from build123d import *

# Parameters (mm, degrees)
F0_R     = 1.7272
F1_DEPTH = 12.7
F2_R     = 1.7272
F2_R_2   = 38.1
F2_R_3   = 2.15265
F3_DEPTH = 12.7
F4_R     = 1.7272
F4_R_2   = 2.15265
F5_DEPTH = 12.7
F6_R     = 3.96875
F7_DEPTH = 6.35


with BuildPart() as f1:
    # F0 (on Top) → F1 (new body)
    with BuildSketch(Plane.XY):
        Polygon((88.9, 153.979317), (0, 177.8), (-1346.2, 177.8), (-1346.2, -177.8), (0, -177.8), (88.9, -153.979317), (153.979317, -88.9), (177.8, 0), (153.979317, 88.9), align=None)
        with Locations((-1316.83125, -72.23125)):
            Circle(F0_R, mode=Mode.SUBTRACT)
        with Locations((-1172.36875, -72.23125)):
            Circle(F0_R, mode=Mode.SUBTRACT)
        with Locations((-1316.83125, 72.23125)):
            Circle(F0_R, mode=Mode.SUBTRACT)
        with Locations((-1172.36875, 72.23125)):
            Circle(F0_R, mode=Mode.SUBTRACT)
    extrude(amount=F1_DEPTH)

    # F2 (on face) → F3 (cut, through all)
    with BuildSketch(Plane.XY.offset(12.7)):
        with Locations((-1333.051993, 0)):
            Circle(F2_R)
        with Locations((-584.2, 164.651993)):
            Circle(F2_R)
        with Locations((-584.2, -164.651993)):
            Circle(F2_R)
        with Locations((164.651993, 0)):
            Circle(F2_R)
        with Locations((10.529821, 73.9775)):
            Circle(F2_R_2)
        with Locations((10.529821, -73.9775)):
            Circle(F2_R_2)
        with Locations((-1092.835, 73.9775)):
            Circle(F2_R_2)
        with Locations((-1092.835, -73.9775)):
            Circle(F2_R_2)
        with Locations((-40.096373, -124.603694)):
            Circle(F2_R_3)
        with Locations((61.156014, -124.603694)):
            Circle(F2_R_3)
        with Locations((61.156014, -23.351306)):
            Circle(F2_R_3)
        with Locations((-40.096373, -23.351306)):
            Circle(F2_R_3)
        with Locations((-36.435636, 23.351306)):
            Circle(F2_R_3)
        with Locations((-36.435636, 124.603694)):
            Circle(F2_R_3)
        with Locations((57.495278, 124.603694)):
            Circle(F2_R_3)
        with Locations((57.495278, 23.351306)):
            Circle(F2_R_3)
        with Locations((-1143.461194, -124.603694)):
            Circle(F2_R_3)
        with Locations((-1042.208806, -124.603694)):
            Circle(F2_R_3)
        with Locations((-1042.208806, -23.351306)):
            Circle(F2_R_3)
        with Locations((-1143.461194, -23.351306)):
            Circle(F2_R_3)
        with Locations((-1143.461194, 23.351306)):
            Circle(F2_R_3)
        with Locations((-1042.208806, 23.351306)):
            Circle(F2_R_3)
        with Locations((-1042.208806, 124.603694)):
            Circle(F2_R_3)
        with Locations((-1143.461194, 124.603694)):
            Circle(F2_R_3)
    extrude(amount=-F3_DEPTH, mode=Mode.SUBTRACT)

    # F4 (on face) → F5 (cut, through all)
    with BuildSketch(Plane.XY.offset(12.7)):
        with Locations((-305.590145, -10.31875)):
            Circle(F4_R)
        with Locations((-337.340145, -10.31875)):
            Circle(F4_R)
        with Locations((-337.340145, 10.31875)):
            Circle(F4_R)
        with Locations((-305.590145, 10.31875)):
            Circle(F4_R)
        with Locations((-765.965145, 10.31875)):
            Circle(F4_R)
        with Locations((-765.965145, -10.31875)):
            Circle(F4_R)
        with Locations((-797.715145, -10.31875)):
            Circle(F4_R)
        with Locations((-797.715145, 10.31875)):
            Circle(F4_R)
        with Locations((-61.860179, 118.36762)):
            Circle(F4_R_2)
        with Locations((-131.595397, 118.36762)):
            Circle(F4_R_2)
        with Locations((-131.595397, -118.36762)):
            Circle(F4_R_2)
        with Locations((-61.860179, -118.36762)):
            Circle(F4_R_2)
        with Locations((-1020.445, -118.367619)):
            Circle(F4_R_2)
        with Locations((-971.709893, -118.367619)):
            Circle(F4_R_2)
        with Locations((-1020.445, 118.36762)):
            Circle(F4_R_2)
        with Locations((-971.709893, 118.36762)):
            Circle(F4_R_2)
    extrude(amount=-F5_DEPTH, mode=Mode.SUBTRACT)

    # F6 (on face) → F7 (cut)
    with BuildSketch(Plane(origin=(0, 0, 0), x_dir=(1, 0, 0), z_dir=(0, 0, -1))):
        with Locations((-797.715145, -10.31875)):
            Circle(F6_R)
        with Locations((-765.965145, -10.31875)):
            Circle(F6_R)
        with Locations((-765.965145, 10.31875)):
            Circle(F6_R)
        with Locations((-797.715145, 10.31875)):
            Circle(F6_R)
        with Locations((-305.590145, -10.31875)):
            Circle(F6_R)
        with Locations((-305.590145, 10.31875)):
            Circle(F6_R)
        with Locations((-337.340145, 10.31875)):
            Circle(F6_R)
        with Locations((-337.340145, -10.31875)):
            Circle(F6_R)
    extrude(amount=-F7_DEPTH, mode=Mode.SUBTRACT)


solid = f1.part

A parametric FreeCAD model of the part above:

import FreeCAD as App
import Part
import Sketcher
from FreeCAD import Vector
Q = App.Units.Quantity

doc = App.newDocument("Part")
params = doc.addObject("Spreadsheet::Sheet", "Params")
for row, (alias, value) in enumerate([
    ("sketch1_width", "53 in"),
    ("sketch1_height", "14 in"),
    ("sketch1_diameter", "0.136 in"),
    ("pad1_length", "0.5 in"),
    ("sketch2_diameter", "3 in"),
    ("sketch2_diameter2", "0.136 in"),
    ("sketch3_diameter", "0.136 in"),
    ("sketch4_diameter", "0.3125 in"),
    ("pocket3_length", "0.25 in"),
], start=1):
    params.set(f"A{row}", alias)
    params.set(f"B{row}", "=" + value)
    params.setAlias(f"B{row}", alias)

body = doc.addObject("PartDesign::Body", "Body")

# Sketch on XY plane
sketch1 = body.newObject("Sketcher::SketchObject", "Sketch")
sketch1.AttachmentSupport = (doc.getObject("XY_Plane"), [""])
sketch1.MapMode = "FlatFace"
sketch1.addGeometry([
    Part.LineSegment(Vector(88.9, 154, 0), Vector(0, 177.8, 0)),  # 0
    Part.LineSegment(Vector(0, 177.8, 0), Vector(-1346.2, 177.8, 0)),  # 1
    Part.LineSegment(Vector(-1346.2, 177.8, 0), Vector(-1346.2, -177.8, 0)),  # 2
    Part.LineSegment(Vector(-1346.2, -177.8, 0), Vector(0, -177.8, 0)),  # 3
    Part.LineSegment(Vector(0, -177.8, 0), Vector(88.9, -154, 0)),  # 4
    Part.LineSegment(Vector(88.9, -154, 0), Vector(154, -88.9, 0)),  # 5
    Part.LineSegment(Vector(154, -88.9, 0), Vector(177.8, 0, 0)),  # 6
    Part.LineSegment(Vector(177.8, 0, 0), Vector(154, 88.9, 0)),  # 7
    Part.LineSegment(Vector(154, 88.9, 0), Vector(88.9, 154, 0)),  # 8
    Part.Circle(Vector(-1316.8, -72.2, 0), Vector(0, 0, 1), 1.7),  # 9
    Part.Circle(Vector(-1172.4, -72.2, 0), Vector(0, 0, 1), 1.7),  # 10
    Part.Circle(Vector(-1316.8, 72.2, 0), Vector(0, 0, 1), 1.7),  # 11
    Part.Circle(Vector(-1172.4, 72.2, 0), Vector(0, 0, 1), 1.7),  # 12
], False)
sketch1.addConstraint([
    Sketcher.Constraint("Coincident", 0, 2, 1, 1),
    Sketcher.Constraint("Coincident", 1, 2, 2, 1),
    Sketcher.Constraint("Coincident", 2, 2, 3, 1),
    Sketcher.Constraint("Coincident", 3, 2, 4, 1),
    Sketcher.Constraint("Coincident", 4, 2, 5, 1),
    Sketcher.Constraint("Coincident", 5, 2, 6, 1),
    Sketcher.Constraint("Coincident", 6, 2, 7, 1),
    Sketcher.Constraint("Coincident", 7, 2, 8, 1),
    Sketcher.Constraint("Coincident", 8, 2, 0, 1),
    Sketcher.Constraint("Horizontal", 1),
    Sketcher.Constraint("Vertical", 2),
    Sketcher.Constraint("Horizontal", 3),
    Sketcher.Constraint("Equal", 9, 10),
    Sketcher.Constraint("Equal", 10, 11),
    Sketcher.Constraint("Equal", 11, 12),
    Sketcher.Constraint("Symmetric", 0, 2, 3, 2, -1, 1),
    Sketcher.Constraint("Symmetric", 9, 3, 11, 3, -1),
    Sketcher.Constraint("Symmetric", 10, 3, 12, 3, -1),
    Sketcher.Constraint("Symmetric", 5, 2, 7, 2, -1),
    Sketcher.Constraint("Symmetric", 4, 2, 8, 2, -1),
    Sketcher.Constraint("PointOnObject", 0, 2, -2),
    Sketcher.Constraint("PointOnObject", 6, 2, -1),
    Sketcher.Constraint("Perpendicular", 0, 6),
    Sketcher.Constraint("Perpendicular", 5, 8),
    Sketcher.Constraint("Horizontal", 9, 3, 10, 3),
    Sketcher.Constraint("Equal", 4, 5),
    Sketcher.Constraint("Equal", 5, 6),
    Sketcher.Constraint("DistanceX", 1, 2, 1, 1, Q("53 in")),
    Sketcher.Constraint("DistanceY", 2, 2, 2, 1, Q("14 in")),
    Sketcher.Constraint("Diameter", 9, Q("0.136 in")),
    Sketcher.Constraint("Angle", 0, Q("165 deg")),
    Sketcher.Constraint("DistanceX", 9, 3, -1, 1, Q("51.84375 in")),
    Sketcher.Constraint("DistanceY", 9, 3, -1, 1, Q("2.84375 in")),
    Sketcher.Constraint("DistanceX", 10, 3, -1, 1, Q("46.15625 in")),
])
sketch1.setExpression("Constraints[27]", "Params.sketch1_width")
sketch1.setExpression("Constraints[28]", "Params.sketch1_height")
sketch1.setExpression("Constraints[29]", "Params.sketch1_diameter")
pad1 = body.newObject("PartDesign::Pad", "Pad")
pad1.Profile = sketch1
pad1.setExpression("Length", "Params.pad1_length")

# Sketch on XY plane
sketch2 = body.newObject("Sketcher::SketchObject", "Sketch001")
sketch2.AttachmentSupport = (doc.getObject("XY_Plane"), [""])
sketch2.MapMode = "FlatFace"
sketch2.AttachmentOffset = App.Placement(Vector(0, 0, 0.5 * 25.4), App.Rotation())
sketch2.addGeometry([
    Part.Circle(Vector(-1333.1, 0, 0), Vector(0, 0, 1), 1.7),  # 0
    Part.Circle(Vector(-584.2, 164.7, 0), Vector(0, 0, 1), 1.7),  # 1
    Part.Circle(Vector(-584.2, -164.7, 0), Vector(0, 0, 1), 1.7),  # 2
    Part.Circle(Vector(164.7, 0, 0), Vector(0, 0, 1), 1.7),  # 3
    Part.Circle(Vector(10.5, 74, 0), Vector(0, 0, 1), 38.1),  # 4
    Part.Circle(Vector(10.5, -74, 0), Vector(0, 0, 1), 38.1),  # 5
    Part.Circle(Vector(-1092.8, 74, 0), Vector(0, 0, 1), 38.1),  # 6
    Part.Circle(Vector(-1092.8, -74, 0), Vector(0, 0, 1), 38.1),  # 7
    Part.Circle(Vector(-40.1, -124.6, 0), Vector(0, 0, 1), 2.2),  # 8
    Part.Circle(Vector(61.2, -124.6, 0), Vector(0, 0, 1), 2.2),  # 9
    Part.Circle(Vector(61.2, -23.4, 0), Vector(0, 0, 1), 2.2),  # 10
    Part.Circle(Vector(-40.1, -23.4, 0), Vector(0, 0, 1), 2.2),  # 11
    Part.Circle(Vector(-36.4, 23.4, 0), Vector(0, 0, 1), 2.2),  # 12
    Part.Circle(Vector(-36.4, 124.6, 0), Vector(0, 0, 1), 2.2),  # 13
    Part.Circle(Vector(57.5, 124.6, 0), Vector(0, 0, 1), 2.2),  # 14
    Part.Circle(Vector(57.5, 23.4, 0), Vector(0, 0, 1), 2.2),  # 15
    Part.Circle(Vector(-1143.5, -124.6, 0), Vector(0, 0, 1), 2.2),  # 16
    Part.Circle(Vector(-1042.2, -124.6, 0), Vector(0, 0, 1), 2.2),  # 17
    Part.Circle(Vector(-1042.2, -23.4, 0), Vector(0, 0, 1), 2.2),  # 18
    Part.Circle(Vector(-1143.5, -23.4, 0), Vector(0, 0, 1), 2.2),  # 19
    Part.Circle(Vector(-1143.5, 23.4, 0), Vector(0, 0, 1), 2.2),  # 20
    Part.Circle(Vector(-1042.2, 23.4, 0), Vector(0, 0, 1), 2.2),  # 21
    Part.Circle(Vector(-1042.2, 124.6, 0), Vector(0, 0, 1), 2.2),  # 22
    Part.Circle(Vector(-1143.5, 124.6, 0), Vector(0, 0, 1), 2.2),  # 23
], False)
sketch2.addConstraint([
    Sketcher.Constraint("Equal", 0, 1),
    Sketcher.Constraint("Equal", 1, 2),
    Sketcher.Constraint("Equal", 2, 3),
    Sketcher.Constraint("Equal", 4, 5),
    Sketcher.Constraint("Equal", 5, 6),
    Sketcher.Constraint("Equal", 6, 7),
    Sketcher.Constraint("Equal", 8, 9),
    Sketcher.Constraint("Equal", 9, 10),
    Sketcher.Constraint("Equal", 10, 11),
    Sketcher.Constraint("Equal", 11, 12),
    Sketcher.Constraint("Equal", 12, 13),
    Sketcher.Constraint("Equal", 13, 14),
    Sketcher.Constraint("Equal", 14, 15),
    Sketcher.Constraint("Equal", 15, 16),
    Sketcher.Constraint("Equal", 16, 17),
    Sketcher.Constraint("Equal", 17, 18),
    Sketcher.Constraint("Equal", 18, 19),
    Sketcher.Constraint("Equal", 19, 20),
    Sketcher.Constraint("Equal", 20, 21),
    Sketcher.Constraint("Equal", 21, 22),
    Sketcher.Constraint("Equal", 22, 23),
    Sketcher.Constraint("Symmetric", 1, 3, 2, 3, -1),
    Sketcher.Constraint("Symmetric", 4, 3, 5, 3, -1),
    Sketcher.Constraint("Symmetric", 6, 3, 7, 3, -1),
    Sketcher.Constraint("Symmetric", 19, 3, 20, 3, -1),
    Sketcher.Constraint("Symmetric", 18, 3, 21, 3, -1),
    Sketcher.Constraint("Symmetric", 17, 3, 22, 3, -1),
    Sketcher.Constraint("Symmetric", 16, 3, 23, 3, -1),
    Sketcher.Constraint("PointOnObject", 0, 3, -1),
    Sketcher.Constraint("PointOnObject", 3, 3, -1),
    Sketcher.Constraint("Horizontal", 4, 3, 6, 3),
    Sketcher.Constraint("Horizontal", 8, 3, 9, 3),
    Sketcher.Constraint("Horizontal", 10, 3, 11, 3),
    Sketcher.Constraint("Horizontal", 13, 3, 14, 3),
    Sketcher.Constraint("Horizontal", 12, 3, 15, 3),
    Sketcher.Constraint("Horizontal", 9, 3, 16, 3),
    Sketcher.Constraint("Horizontal", 16, 3, 17, 3),
    Sketcher.Constraint("Horizontal", 11, 3, 18, 3),
    Sketcher.Constraint("Horizontal", 18, 3, 19, 3),
    Sketcher.Constraint("Horizontal", 15, 3, 20, 3),
    Sketcher.Constraint("Horizontal", 14, 3, 22, 3),
    Sketcher.Constraint("Vertical", 9, 3, 10, 3),
    Sketcher.Constraint("Vertical", 8, 3, 11, 3),
    Sketcher.Constraint("Vertical", 12, 3, 13, 3),
    Sketcher.Constraint("Vertical", 14, 3, 15, 3),
    Sketcher.Constraint("Vertical", 17, 3, 18, 3),
    Sketcher.Constraint("Vertical", 16, 3, 19, 3),
    Sketcher.Constraint("Diameter", 4, Q("3 in")),
    Sketcher.Constraint("Diameter", 0, Q("0.136 in")),
    Sketcher.Constraint("DistanceX", 1, 3, -1, 1, Q("23 in")),
    Sketcher.Constraint("Diameter", 8, Q("0.1695 in")),
    Sketcher.Constraint("DistanceX", 6, 3, -1, 1, Q("43.025 in")),
    Sketcher.Constraint("DistanceY", 5, 3, 4, 3, Q("5.825 in")),
    Sketcher.Constraint("DistanceY", 8, 3, 12, 3, Q("5.825 in")),
    Sketcher.Constraint("DistanceY", 2, 3, 8, 3, Q("40.048299 mm")),
    Sketcher.Constraint("DistanceX", 0, 3, 16, 3, Q("189.590799 mm")),
    Sketcher.Constraint("DistanceX", -1, 1, 4, 3, Q("10.529821 mm")),
    Sketcher.Constraint("DistanceX", 4, 3, 3, 3, Q("154.122172 mm")),
    Sketcher.Constraint("DistanceX", 9, 3, 3, 3, Q("103.495979 mm")),
    Sketcher.Constraint("DistanceX", 12, 3, 10, 3, Q("97.59165 mm")),
    Sketcher.Constraint("DistanceX", 0, 3, -1, 1, Q("1333.051993 mm")),
    Sketcher.Constraint("DistanceY", -1, 1, 1, 3, Q("164.651993 mm")),
    Sketcher.Constraint("DistanceX", 8, 3, -1, 1, Q("40.096373 mm")),
    Sketcher.Constraint("DistanceX", -1, 1, 14, 3, Q("57.495278 mm")),
    Sketcher.Constraint("DistanceX", 17, 3, -1, 1, Q("1042.208806 mm")),
])
sketch2.setExpression("Constraints[47]", "Params.sketch2_diameter")
sketch2.setExpression("Constraints[48]", "Params.sketch2_diameter2")
pocket1 = body.newObject("PartDesign::Pocket", "Pocket")
pocket1.Profile = sketch2
pocket1.Type = "ThroughAll"

# Sketch on XY plane
sketch3 = body.newObject("Sketcher::SketchObject", "Sketch002")
sketch3.AttachmentSupport = (doc.getObject("XY_Plane"), [""])
sketch3.MapMode = "FlatFace"
sketch3.AttachmentOffset = App.Placement(Vector(0, 0, 0.5 * 25.4), App.Rotation())
sketch3.addGeometry([
    Part.Circle(Vector(-305.6, -10.3, 0), Vector(0, 0, 1), 1.7),  # 0
    Part.Circle(Vector(-337.3, -10.3, 0), Vector(0, 0, 1), 1.7),  # 1
    Part.Circle(Vector(-337.3, 10.3, 0), Vector(0, 0, 1), 1.7),  # 2
    Part.Circle(Vector(-305.6, 10.3, 0), Vector(0, 0, 1), 1.7),  # 3
    Part.Circle(Vector(-766, 10.3, 0), Vector(0, 0, 1), 1.7),  # 4
    Part.Circle(Vector(-766, -10.3, 0), Vector(0, 0, 1), 1.7),  # 5
    Part.Circle(Vector(-797.7, -10.3, 0), Vector(0, 0, 1), 1.7),  # 6
    Part.Circle(Vector(-797.7, 10.3, 0), Vector(0, 0, 1), 1.7),  # 7
    Part.Circle(Vector(-61.9, 118.4, 0), Vector(0, 0, 1), 2.2),  # 8
    Part.Circle(Vector(-131.6, 118.4, 0), Vector(0, 0, 1), 2.2),  # 9
    Part.Circle(Vector(-131.6, -118.4, 0), Vector(0, 0, 1), 2.2),  # 10
    Part.Circle(Vector(-61.9, -118.4, 0), Vector(0, 0, 1), 2.2),  # 11
    Part.Circle(Vector(-1020.4, -118.4, 0), Vector(0, 0, 1), 2.2),  # 12
    Part.Circle(Vector(-971.7, -118.4, 0), Vector(0, 0, 1), 2.2),  # 13
    Part.Circle(Vector(-1020.4, 118.4, 0), Vector(0, 0, 1), 2.2),  # 14
    Part.Circle(Vector(-971.7, 118.4, 0), Vector(0, 0, 1), 2.2),  # 15
], False)
sketch3.addConstraint([
    Sketcher.Constraint("Equal", 0, 1),
    Sketcher.Constraint("Equal", 1, 2),
    Sketcher.Constraint("Equal", 2, 3),
    Sketcher.Constraint("Equal", 3, 4),
    Sketcher.Constraint("Equal", 4, 5),
    Sketcher.Constraint("Equal", 5, 6),
    Sketcher.Constraint("Equal", 6, 7),
    Sketcher.Constraint("Equal", 8, 9),
    Sketcher.Constraint("Equal", 9, 10),
    Sketcher.Constraint("Equal", 10, 11),
    Sketcher.Constraint("Equal", 11, 12),
    Sketcher.Constraint("Equal", 12, 13),
    Sketcher.Constraint("Equal", 13, 14),
    Sketcher.Constraint("Equal", 14, 15),
    Sketcher.Constraint("Symmetric", 1, 3, 2, 3, -1),
    Sketcher.Constraint("Symmetric", 0, 3, 3, 3, -1),
    Sketcher.Constraint("Symmetric", 4, 3, 5, 3, -1),
    Sketcher.Constraint("Symmetric", 6, 3, 7, 3, -1),
    Sketcher.Constraint("Symmetric", 9, 3, 10, 3, -1),
    Sketcher.Constraint("Symmetric", 8, 3, 11, 3, -1),
    Sketcher.Constraint("Symmetric", 12, 3, 14, 3, -1),
    Sketcher.Constraint("Symmetric", 13, 3, 15, 3, -1),
    Sketcher.Constraint("Horizontal", 0, 3, 1, 3),
    Sketcher.Constraint("Horizontal", 3, 3, 4, 3),
    Sketcher.Constraint("Horizontal", 5, 3, 6, 3),
    Sketcher.Constraint("Horizontal", 8, 3, 9, 3),
    Sketcher.Constraint("Horizontal", 11, 3, 12, 3),
    Sketcher.Constraint("Horizontal", 12, 3, 13, 3),
    Sketcher.Constraint("Diameter", 0, Q("0.136 in")),
    Sketcher.Constraint("Diameter", 8, Q("0.1695 in")),
    Sketcher.Constraint("DistanceX", 1, 3, 0, 3, Q("1.25 in")),
    Sketcher.Constraint("DistanceX", 6, 3, 5, 3, Q("1.25 in")),
    Sketcher.Constraint("DistanceY", 0, 3, -1, 1, Q("0.40625 in")),
    Sketcher.Constraint("DistanceX", 12, 3, -1, 1, Q("40.175 in")),
    Sketcher.Constraint("DistanceX", 4, 3, 2, 3, Q("16.875 in")),
    Sketcher.Constraint("DistanceX", 8, 3, -1, 1, Q("61.860179 mm")),
    Sketcher.Constraint("DistanceY", -1, 1, 8, 3, Q("118.36762 mm")),
    Sketcher.Constraint("DistanceX", 3, 3, 9, 3, Q("173.994748 mm")),
    Sketcher.Constraint("DistanceX", 0, 3, -1, 1, Q("305.590145 mm")),
    Sketcher.Constraint("DistanceX", 13, 3, -1, 1, Q("971.709893 mm")),
])
sketch3.setExpression("Constraints[28]", "Params.sketch3_diameter")
pocket2 = body.newObject("PartDesign::Pocket", "Pocket001")
pocket2.Profile = sketch3
pocket2.Type = "ThroughAll"

# Sketch on XY plane
sketch4 = body.newObject("Sketcher::SketchObject", "Sketch003")
sketch4.AttachmentSupport = (doc.getObject("XY_Plane"), [""])
sketch4.MapMode = "FlatFace"
sketch4.addGeometry([
    Part.Circle(Vector(-797.7, 10.3, 0), Vector(0, 0, 1), 4),  # 0
    Part.Circle(Vector(-766, 10.3, 0), Vector(0, 0, 1), 4),  # 1
    Part.Circle(Vector(-766, -10.3, 0), Vector(0, 0, 1), 4),  # 2
    Part.Circle(Vector(-797.7, -10.3, 0), Vector(0, 0, 1), 4),  # 3
    Part.Circle(Vector(-305.6, 10.3, 0), Vector(0, 0, 1), 4),  # 4
    Part.Circle(Vector(-305.6, -10.3, 0), Vector(0, 0, 1), 4),  # 5
    Part.Circle(Vector(-337.3, -10.3, 0), Vector(0, 0, 1), 4),  # 6
    Part.Circle(Vector(-337.3, 10.3, 0), Vector(0, 0, 1), 4),  # 7
], False)
sketch4.addConstraint([
    Sketcher.Constraint("Equal", 0, 1),
    Sketcher.Constraint("Equal", 1, 2),
    Sketcher.Constraint("Equal", 2, 3),
    Sketcher.Constraint("Equal", 3, 4),
    Sketcher.Constraint("Equal", 4, 5),
    Sketcher.Constraint("Equal", 5, 6),
    Sketcher.Constraint("Equal", 6, 7),
    Sketcher.Constraint("Symmetric", 1, 3, 2, 3, -1),
    Sketcher.Constraint("Symmetric", 0, 3, 3, 3, -1),
    Sketcher.Constraint("Symmetric", 4, 3, 5, 3, -1),
    Sketcher.Constraint("Symmetric", 6, 3, 7, 3, -1),
    Sketcher.Constraint("Horizontal", 0, 3, 1, 3),
    Sketcher.Constraint("Horizontal", 1, 3, 4, 3),
    Sketcher.Constraint("Horizontal", 5, 3, 6, 3),
    Sketcher.Constraint("Diameter", 0, Q("0.3125 in")),
    Sketcher.Constraint("DistanceX", 0, 3, 1, 3, Q("1.25 in")),
    Sketcher.Constraint("DistanceX", 6, 3, 5, 3, Q("1.25 in")),
    Sketcher.Constraint("DistanceY", -1, 1, 0, 3, Q("0.40625 in")),
    Sketcher.Constraint("DistanceX", 1, 3, 4, 3, Q("18.125 in")),
    Sketcher.Constraint("DistanceX", 0, 3, -1, 1, Q("797.715145 mm")),
])
sketch4.setExpression("Constraints[14]", "Params.sketch4_diameter")
pocket3 = body.newObject("PartDesign::Pocket", "Pocket002")
pocket3.Profile = sketch4
pocket3.setExpression("Length", "Params.pocket3_length")
pocket3.Reversed = True

doc.recompute()
